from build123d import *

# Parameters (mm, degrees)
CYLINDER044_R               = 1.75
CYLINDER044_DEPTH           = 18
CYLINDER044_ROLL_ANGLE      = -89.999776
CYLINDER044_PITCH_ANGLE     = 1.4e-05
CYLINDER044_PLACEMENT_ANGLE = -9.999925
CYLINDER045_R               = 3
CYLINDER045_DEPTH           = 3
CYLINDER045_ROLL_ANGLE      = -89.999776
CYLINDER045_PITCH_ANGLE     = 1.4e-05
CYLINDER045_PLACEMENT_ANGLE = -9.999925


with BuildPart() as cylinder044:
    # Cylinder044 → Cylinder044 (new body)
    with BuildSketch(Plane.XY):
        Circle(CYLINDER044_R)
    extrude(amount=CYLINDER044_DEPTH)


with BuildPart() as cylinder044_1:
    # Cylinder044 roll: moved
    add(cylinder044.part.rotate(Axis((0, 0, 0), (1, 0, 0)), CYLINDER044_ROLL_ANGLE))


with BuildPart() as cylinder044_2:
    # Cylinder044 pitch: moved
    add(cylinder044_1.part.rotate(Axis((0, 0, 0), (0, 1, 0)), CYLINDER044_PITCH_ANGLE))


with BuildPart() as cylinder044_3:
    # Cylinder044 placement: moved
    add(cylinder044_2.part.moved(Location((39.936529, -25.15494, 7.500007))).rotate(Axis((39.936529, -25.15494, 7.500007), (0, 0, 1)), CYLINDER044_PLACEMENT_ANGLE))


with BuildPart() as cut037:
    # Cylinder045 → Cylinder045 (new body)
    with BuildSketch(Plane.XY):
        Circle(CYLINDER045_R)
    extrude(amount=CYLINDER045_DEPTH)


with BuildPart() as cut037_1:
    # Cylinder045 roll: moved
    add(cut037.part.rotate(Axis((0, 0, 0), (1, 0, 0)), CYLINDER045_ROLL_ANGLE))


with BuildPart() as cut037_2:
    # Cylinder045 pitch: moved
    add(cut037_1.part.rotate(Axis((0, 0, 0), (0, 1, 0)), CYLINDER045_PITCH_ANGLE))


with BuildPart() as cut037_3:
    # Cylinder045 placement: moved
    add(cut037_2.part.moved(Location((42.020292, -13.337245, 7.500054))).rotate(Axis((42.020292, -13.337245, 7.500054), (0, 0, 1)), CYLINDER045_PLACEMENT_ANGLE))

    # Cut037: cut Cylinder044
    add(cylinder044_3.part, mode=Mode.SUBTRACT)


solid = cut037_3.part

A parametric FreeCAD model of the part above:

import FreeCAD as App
import Part
import Sketcher

V = App.Vector

doc = App.newDocument("Part")
body = doc.addObject("PartDesign::Body", "Body")

# Sketch on XY plane
sketch1 = body.newObject("Sketcher::SketchObject", "Sketch")
sketch1.AttachmentSupport = (doc.getObject("XY_Plane"), [""])
sketch1.MapMode = "FlatFace"
sketch1.addGeometry(Part.Circle(V(0, 0, 0), V(0, 0, 1), 1.8), False)
sketch1.addConstraint([
    Sketcher.Constraint("Coincident", 0, 3, -1, 1),
    Sketcher.Constraint("Diameter", 0, 3.5),
])
pad1 = body.newObject("PartDesign::Pad", "Pad")
pad1.Profile = sketch1
pad1.Length = 18
body2 = doc.addObject("PartDesign::Body", "Body001")
doc.recompute()

body.Placement = App.Placement(V(0, 0, 0), App.Rotation(V(1, 0, 0), 270.000224))
boolean = body2.newObject("PartDesign::Boolean", "Boolean")
boolean.Type = "Fuse"
boolean.addObjects([body])
body3 = doc.addObject("PartDesign::Body", "Body002")
doc.recompute()

body2.Placement = App.Placement(V(0, 0, 0), App.Rotation(V(0, 1, 0), 0.000014))
boolean2 = body3.newObject("PartDesign::Boolean", "Boolean001")
boolean2.Type = "Fuse"
boolean2.addObjects([body2])
body4 = doc.addObject("PartDesign::Body", "Body003")
doc.recompute()

body3.Placement = App.Placement(V(39.936529, -25.15494, 7.500007), App.Rotation(V(0, 0, 1), 350.000075))
boolean3 = body4.newObject("PartDesign::Boolean", "Boolean002")
boolean3.Type = "Fuse"
boolean3.addObjects([body3])
body5 = doc.addObject("PartDesign::Body", "Body004")

# Sketch on XY plane
sketch2 = body5.newObject("Sketcher::SketchObject", "Sketch001")
sketch2.AttachmentSupport = (doc.getObject("XY_Plane004"), [""])
sketch2.MapMode = "FlatFace"
sketch2.addGeometry(Part.Circle(V(0, 0, 0), V(0, 0, 1), 3), False)
sketch2.addConstraint([
    Sketcher.Constraint("Coincident", 0, 3, -1, 1),
    Sketcher.Constraint("Diameter", 0, 6.0),
])
pad2 = body5.newObject("PartDesign::Pad", "Pad001")
pad2.Profile = sketch2
pad2.Length = 3
body6 = doc.addObject("PartDesign::Body", "Body005")
doc.recompute()

body5.Placement = App.Placement(V(0, 0, 0), App.Rotation(V(1, 0, 0), 270.000224))
boolean4 = body6.newObject("PartDesign::Boolean", "Boolean003")
boolean4.Type = "Fuse"
boolean4.addObjects([body5])
body7 = doc.addObject("PartDesign::Body", "Body006")
doc.recompute()

body6.Placement = App.Placement(V(0, 0, 0), App.Rotation(V(0, 1, 0), 0.000014))
boolean5 = body7.newObject("PartDesign::Boolean", "Boolean004")
boolean5.Type = "Fuse"
boolean5.addObjects([body6])
body8 = doc.addObject("PartDesign::Body", "Body007")
doc.recompute()

body7.Placement = App.Placement(V(42.020292, -13.337245, 7.500054), App.Rotation(V(0, 0, 1), 350.000075))
boolean6 = body8.newObject("PartDesign::Boolean", "Boolean005")
boolean6.Type = "Fuse"
boolean6.addObjects([body7])
doc.recompute()

boolean7 = body8.newObject("PartDesign::Boolean", "Boolean006")
boolean7.Type = "Cut"
boolean7.addObjects([body4])

doc.recompute()
